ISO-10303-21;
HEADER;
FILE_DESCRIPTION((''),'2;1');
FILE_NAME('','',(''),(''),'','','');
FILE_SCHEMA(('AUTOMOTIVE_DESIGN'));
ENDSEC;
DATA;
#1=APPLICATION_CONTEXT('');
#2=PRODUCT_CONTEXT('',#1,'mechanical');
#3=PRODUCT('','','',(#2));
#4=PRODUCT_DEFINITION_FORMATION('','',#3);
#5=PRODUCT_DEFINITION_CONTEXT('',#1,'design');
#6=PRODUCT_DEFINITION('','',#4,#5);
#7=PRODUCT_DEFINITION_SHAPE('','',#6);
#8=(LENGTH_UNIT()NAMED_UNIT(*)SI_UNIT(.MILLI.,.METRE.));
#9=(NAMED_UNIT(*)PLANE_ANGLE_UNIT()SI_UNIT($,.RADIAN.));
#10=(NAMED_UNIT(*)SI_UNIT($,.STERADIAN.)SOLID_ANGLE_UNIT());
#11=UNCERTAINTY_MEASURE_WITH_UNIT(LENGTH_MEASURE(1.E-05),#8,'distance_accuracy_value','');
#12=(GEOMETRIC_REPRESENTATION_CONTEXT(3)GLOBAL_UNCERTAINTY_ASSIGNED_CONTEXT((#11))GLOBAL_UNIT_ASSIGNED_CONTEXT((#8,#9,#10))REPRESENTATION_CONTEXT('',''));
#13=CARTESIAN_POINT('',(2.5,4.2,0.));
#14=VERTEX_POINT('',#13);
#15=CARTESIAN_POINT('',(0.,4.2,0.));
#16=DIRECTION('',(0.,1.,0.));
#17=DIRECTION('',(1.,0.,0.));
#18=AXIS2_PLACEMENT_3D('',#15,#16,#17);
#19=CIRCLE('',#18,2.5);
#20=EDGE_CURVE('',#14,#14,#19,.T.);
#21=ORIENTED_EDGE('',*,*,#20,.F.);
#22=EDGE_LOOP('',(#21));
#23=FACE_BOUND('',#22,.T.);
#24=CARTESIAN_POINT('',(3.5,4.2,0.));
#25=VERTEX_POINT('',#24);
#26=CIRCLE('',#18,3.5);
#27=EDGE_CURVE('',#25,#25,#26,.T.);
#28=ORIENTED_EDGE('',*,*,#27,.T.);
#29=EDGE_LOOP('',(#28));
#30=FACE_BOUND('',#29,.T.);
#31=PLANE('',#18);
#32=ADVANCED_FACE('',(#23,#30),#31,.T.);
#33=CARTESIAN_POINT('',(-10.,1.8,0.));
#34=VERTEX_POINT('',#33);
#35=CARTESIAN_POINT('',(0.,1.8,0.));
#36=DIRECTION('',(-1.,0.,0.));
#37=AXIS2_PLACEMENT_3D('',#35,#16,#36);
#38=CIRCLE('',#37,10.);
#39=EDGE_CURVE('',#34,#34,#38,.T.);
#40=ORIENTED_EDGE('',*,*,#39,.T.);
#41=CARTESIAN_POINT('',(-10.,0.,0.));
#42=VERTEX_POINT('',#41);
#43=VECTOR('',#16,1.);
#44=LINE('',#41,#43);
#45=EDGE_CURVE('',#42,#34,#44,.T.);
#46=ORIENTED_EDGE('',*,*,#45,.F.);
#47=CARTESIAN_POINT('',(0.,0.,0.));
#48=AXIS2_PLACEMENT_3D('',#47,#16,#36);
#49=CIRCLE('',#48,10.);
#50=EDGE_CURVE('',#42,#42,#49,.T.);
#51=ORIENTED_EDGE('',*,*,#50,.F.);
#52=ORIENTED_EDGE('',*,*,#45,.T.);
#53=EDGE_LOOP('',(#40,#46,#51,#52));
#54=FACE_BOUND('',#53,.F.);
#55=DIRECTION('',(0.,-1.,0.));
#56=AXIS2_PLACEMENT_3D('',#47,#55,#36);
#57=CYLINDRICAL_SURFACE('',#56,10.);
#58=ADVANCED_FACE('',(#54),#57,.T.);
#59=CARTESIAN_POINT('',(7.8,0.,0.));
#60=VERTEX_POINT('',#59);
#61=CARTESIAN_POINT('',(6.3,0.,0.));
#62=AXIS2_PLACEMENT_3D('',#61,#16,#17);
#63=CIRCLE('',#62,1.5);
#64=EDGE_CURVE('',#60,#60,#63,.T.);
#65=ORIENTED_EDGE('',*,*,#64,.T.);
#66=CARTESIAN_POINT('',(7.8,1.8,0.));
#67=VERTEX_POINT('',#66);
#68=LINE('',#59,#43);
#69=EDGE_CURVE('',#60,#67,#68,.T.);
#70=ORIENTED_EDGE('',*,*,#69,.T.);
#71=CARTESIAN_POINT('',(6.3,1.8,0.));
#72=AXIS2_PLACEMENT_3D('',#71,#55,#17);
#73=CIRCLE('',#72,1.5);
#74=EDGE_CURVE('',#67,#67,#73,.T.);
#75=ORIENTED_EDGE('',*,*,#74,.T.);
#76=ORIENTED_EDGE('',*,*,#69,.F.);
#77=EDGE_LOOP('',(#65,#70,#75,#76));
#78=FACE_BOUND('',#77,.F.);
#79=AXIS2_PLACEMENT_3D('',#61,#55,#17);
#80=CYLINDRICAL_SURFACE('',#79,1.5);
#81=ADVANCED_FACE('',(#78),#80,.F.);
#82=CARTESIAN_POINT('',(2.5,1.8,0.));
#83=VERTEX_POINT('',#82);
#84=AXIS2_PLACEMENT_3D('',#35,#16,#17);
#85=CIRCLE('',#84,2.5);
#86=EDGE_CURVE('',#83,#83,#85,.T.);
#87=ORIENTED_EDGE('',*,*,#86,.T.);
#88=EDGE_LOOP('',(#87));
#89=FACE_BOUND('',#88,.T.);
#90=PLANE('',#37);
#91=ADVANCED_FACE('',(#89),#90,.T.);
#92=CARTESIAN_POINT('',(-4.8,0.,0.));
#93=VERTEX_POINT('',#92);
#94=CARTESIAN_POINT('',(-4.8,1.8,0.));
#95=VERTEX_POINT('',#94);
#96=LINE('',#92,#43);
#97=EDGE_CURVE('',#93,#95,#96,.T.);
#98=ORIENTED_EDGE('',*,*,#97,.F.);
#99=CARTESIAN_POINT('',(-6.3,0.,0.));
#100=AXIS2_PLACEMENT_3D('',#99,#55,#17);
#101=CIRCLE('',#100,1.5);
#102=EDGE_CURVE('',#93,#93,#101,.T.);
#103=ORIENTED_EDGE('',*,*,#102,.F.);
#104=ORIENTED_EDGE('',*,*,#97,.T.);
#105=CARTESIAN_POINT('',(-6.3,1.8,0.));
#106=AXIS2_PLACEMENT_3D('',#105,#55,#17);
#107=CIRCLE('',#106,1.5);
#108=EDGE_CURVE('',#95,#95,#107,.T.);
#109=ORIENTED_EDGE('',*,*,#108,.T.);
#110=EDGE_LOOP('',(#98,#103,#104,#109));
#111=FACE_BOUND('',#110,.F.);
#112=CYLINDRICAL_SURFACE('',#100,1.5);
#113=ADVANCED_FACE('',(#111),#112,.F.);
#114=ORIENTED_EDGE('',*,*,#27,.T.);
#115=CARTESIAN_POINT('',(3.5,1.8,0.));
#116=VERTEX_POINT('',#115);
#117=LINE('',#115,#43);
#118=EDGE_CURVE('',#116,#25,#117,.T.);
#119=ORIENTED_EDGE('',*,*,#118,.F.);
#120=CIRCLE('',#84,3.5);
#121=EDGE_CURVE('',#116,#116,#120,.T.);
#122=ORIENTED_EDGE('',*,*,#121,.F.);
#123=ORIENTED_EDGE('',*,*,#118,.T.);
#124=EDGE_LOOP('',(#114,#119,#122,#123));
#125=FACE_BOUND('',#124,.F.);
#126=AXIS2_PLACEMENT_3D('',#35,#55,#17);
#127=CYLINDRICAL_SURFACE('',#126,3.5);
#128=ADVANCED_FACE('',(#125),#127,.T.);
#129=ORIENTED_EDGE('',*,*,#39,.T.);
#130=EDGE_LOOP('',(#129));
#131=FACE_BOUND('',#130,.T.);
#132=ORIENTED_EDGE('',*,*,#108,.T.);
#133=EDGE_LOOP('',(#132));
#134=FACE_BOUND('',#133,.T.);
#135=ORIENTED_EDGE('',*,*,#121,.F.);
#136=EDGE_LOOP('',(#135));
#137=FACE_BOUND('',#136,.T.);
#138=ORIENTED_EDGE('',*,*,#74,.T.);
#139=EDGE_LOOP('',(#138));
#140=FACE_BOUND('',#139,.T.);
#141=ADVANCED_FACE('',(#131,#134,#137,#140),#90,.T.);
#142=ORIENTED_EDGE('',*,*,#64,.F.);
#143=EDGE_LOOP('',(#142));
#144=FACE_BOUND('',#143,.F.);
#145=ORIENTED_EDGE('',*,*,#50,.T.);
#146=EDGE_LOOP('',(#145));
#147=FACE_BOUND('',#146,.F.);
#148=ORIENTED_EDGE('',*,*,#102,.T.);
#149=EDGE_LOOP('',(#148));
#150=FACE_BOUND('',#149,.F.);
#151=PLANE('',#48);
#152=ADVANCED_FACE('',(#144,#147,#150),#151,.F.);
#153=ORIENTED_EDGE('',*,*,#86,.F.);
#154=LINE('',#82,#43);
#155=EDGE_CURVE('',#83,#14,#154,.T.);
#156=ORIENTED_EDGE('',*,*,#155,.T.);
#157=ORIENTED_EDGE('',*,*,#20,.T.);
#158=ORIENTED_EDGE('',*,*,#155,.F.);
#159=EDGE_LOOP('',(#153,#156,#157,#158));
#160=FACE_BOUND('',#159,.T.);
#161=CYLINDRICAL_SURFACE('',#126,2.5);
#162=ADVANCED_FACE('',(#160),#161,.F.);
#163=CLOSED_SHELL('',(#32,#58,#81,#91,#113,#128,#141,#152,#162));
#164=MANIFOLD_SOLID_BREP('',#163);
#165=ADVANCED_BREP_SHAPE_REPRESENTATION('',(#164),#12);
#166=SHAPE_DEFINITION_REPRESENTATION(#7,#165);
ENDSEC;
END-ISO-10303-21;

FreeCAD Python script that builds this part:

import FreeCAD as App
import Part
import Sketcher

V = App.Vector

doc = App.newDocument("Part")
body = doc.addObject("PartDesign::Body", "Body")

sketch1 = doc.addObject("Sketcher::SketchObject", "Sketch")
body.addObject(sketch1)
sketch1.AttachmentSupport = (doc.XZ_Plane, [""])
sketch1.MapMode = "FlatFace"
sketch1.addGeometry(Part.Circle(V(0, 0, 0), V(0, 0, 1), 10), False)
sketch1.addConstraint([
    Sketcher.Constraint("Coincident", 0, 3, -1, 1),
    Sketcher.Constraint("Diameter", 0, 20.0),
])
pad1 = doc.addObject("PartDesign::Pad", "Pad")
body.addObject(pad1)
pad1.Profile = sketch1
pad1.Length = 1.8
pad1.Reversed = True

sketch2 = doc.addObject("Sketcher::SketchObject", "Sketch001")
body.addObject(sketch2)
sketch2.AttachmentSupport = (doc.XZ_Plane, [""])
sketch2.MapMode = "FlatFace"
sketch2.AttachmentOffset = App.Placement(V(0, 0, -1.8), App.Rotation())
sketch2.addGeometry([
    Part.Circle(V(0, 0, 0), V(0, 0, 1), 3.5),
    Part.Circle(V(0, 0, 0), V(0, 0, 1), 2.5),
], False)
sketch2.addConstraint([
    Sketcher.Constraint("Coincident", 0, 3, -1, 1),
    Sketcher.Constraint("Coincident", 1, 3, -1, 1),
    Sketcher.Constraint("Diameter", 0, 7.0),
    Sketcher.Constraint("Diameter", 1, 5.0),
])
pad2 = doc.addObject("PartDesign::Pad", "Pad001")
body.addObject(pad2)
pad2.Profile = sketch2
pad2.Length = 2.4
pad2.Reversed = True

sketch3 = doc.addObject("Sketcher::SketchObject", "Sketch002")
body.addObject(sketch3)
sketch3.AttachmentSupport = (doc.XZ_Plane, [""])
sketch3.MapMode = "FlatFace"
sketch3.addGeometry(Part.Circle(V(6.3, 0, 0), V(0, 0, 1), 1.5), False)
sketch3.addConstraint([
    Sketcher.Constraint("PointOnObject", 0, 3, -1),
    Sketcher.Constraint("Diameter", 0, 3.0),
    Sketcher.Constraint("DistanceX", -1, 1, 0, 3, 6.3),
])
pocket1 = doc.addObject("PartDesign::Pocket", "Pocket")
body.addObject(pocket1)
pocket1.Profile = sketch3
pocket1.Length = 2.4

sketch4 = doc.addObject("Sketcher::SketchObject", "Sketch003")
body.addObject(sketch4)
sketch4.AttachmentSupport = (doc.XZ_Plane, [""])
sketch4.MapMode = "FlatFace"
sketch4.addGeometry(Part.Circle(V(-6.3, 0, 0), V(0, 0, 1), 1.5), False)
sketch4.addConstraint([
    Sketcher.Constraint("PointOnObject", 0, 3, -1),
    Sketcher.Constraint("Diameter", 0, 3.0),
    Sketcher.Constraint("DistanceX", 0, 3, -1, 1, 6.3),
])
pocket2 = doc.addObject("PartDesign::Pocket", "Pocket001")
body.addObject(pocket2)
pocket2.Profile = sketch4
pocket2.Length = 2

doc.recompute()
